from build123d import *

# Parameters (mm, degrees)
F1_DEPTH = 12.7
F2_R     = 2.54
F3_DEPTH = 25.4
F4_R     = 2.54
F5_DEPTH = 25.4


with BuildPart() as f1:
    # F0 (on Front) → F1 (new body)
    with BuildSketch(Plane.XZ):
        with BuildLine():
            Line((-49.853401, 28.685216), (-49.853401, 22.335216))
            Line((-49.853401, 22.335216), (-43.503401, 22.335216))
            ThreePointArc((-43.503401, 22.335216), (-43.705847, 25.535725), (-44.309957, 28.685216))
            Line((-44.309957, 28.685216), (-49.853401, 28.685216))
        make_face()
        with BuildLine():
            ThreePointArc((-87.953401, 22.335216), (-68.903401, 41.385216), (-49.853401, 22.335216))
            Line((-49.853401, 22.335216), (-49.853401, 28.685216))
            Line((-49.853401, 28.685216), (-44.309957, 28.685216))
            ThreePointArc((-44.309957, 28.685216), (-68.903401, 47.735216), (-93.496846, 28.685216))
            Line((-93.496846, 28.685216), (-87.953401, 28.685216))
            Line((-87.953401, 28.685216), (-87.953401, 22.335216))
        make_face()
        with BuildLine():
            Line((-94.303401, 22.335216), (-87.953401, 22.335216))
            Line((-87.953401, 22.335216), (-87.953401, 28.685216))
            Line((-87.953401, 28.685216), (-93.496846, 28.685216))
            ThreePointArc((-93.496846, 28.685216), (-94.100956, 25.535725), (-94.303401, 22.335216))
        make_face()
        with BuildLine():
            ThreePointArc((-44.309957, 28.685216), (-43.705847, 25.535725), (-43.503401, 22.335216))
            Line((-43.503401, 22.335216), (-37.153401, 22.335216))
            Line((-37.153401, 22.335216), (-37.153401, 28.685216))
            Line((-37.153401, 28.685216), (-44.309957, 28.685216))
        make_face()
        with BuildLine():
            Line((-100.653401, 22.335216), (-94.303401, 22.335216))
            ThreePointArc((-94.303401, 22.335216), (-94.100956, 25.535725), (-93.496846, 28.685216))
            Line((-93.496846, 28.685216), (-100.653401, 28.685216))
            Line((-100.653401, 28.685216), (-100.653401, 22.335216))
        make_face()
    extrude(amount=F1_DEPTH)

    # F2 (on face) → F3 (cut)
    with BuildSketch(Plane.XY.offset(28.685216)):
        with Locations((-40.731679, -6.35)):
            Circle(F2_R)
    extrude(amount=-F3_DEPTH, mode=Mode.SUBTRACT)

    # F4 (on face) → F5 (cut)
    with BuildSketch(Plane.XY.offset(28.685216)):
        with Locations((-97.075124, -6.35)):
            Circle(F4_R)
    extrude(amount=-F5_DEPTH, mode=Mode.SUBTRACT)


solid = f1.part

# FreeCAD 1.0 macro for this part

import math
import FreeCAD as App
import Part
import Sketcher

V = App.Vector
Q = App.Units.Quantity

doc = App.newDocument("Part")
body = doc.addObject("PartDesign::Body", "Body")

sketch1 = doc.addObject("Sketcher::SketchObject", "Sketch")
body.addObject(sketch1)
sketch1.AttachmentSupport = (doc.XZ_Plane, [""])
sketch1.MapMode = "FlatFace"
sketch1.addGeometry(Part.LineSegment(V(-49.853401, 22.335216, 0), V(-37.153401, 22.335216, 0)), False)
sketch1.addGeometry(Part.LineSegment(V(-37.153401, 22.335216, 0), V(-37.153401, 28.685216, 0)), False)
sketch1.addGeometry(Part.LineSegment(V(-37.153401, 28.685216, 0), V(-44.309957, 28.685216, 0)), False)
sketch1.addGeometry(Part.ArcOfCircle(Part.Circle(V(-68.903402, 22.335216, 0), V(0, 0, 1), 25.4), math.radians(14.477513), math.radians(165.522487)), False)
sketch1.addGeometry(Part.LineSegment(V(-93.496846, 28.685216, 0), V(-100.653401, 28.685216, 0)), False)
sketch1.addGeometry(Part.LineSegment(V(-100.653401, 28.685216, 0), V(-100.653401, 22.335216, 0)), False)
sketch1.addGeometry(Part.LineSegment(V(-100.653401, 22.335216, 0), V(-87.953401, 22.335216, 0)), False)
sketch1.addGeometry(Part.ArcOfCircle(Part.Circle(V(-68.903401, 22.335216, 0), V(0, 0, 1), 19.05), math.radians(0), math.radians(180)), False)
sketch1.addConstraint(Sketcher.Constraint("Coincident", 0, 2, 1, 1))
sketch1.addConstraint(Sketcher.Constraint("Coincident", 1, 2, 2, 1))
sketch1.addConstraint(Sketcher.Constraint("Coincident", 2, 2, 3, 1))
sketch1.addConstraint(Sketcher.Constraint("Coincident", 3, 2, 4, 1))
sketch1.addConstraint(Sketcher.Constraint("Coincident", 4, 2, 5, 1))
sketch1.addConstraint(Sketcher.Constraint("Coincident", 5, 2, 6, 1))
sketch1.addConstraint(Sketcher.Constraint("Coincident", 6, 2, 7, 2))
sketch1.addConstraint(Sketcher.Constraint("Coincident", 7, 1, 0, 1))
sketch1.addConstraint(Sketcher.Constraint("Horizontal", 0))
sketch1.addConstraint(Sketcher.Constraint("Vertical", 1))
sketch1.addConstraint(Sketcher.Constraint("Horizontal", 2))
sketch1.addConstraint(Sketcher.Constraint("Horizontal", 4))
sketch1.addConstraint(Sketcher.Constraint("Vertical", 5))
sketch1.addConstraint(Sketcher.Constraint("Horizontal", 6))
sketch1.addConstraint(Sketcher.Constraint("Coincident", 7, 3, 3, 3))
sketch1.addConstraint(Sketcher.Constraint("Horizontal", 7, 3, 0, 2))
sketch1.addConstraint(Sketcher.Constraint("Horizontal", 2, 2, 3, 2))
sketch1.addConstraint(Sketcher.Constraint("Horizontal", 0, 2, 5, 2))
sketch1.addConstraint(Sketcher.Constraint("Equal", 2, 4))
sketch1.addConstraint(Sketcher.Constraint("Radius", 3, Q("1 in")))
sketch1.addConstraint(Sketcher.Constraint("Radius", 7, Q("0.75 in")))
sketch1.addConstraint(Sketcher.Constraint("DistanceX", 0, 1, 0, 2, Q("0.5 in")))
sketch1.addConstraint(Sketcher.Constraint("DistanceY", 1, 1, 1, 2, Q("0.25 in")))
sketch1.addConstraint(Sketcher.Constraint("DistanceX", 3, 3, -1, 1, Q("68.903402 mm")))
sketch1.addConstraint(Sketcher.Constraint("DistanceY", -1, 1, 3, 3, Q("22.335216 mm")))
pad1 = doc.addObject("PartDesign::Pad", "Pad")
body.addObject(pad1)
pad1.Profile = sketch1
pad1.Length = Q("0.5 in")

sketch2 = doc.addObject("Sketcher::SketchObject", "Sketch001")
body.addObject(sketch2)
sketch2.AttachmentSupport = (doc.XY_Plane, [""])
sketch2.MapMode = "FlatFace"
sketch2.AttachmentOffset = App.Placement(V(0, 0, 28.685216), App.Rotation())
sketch2.addGeometry(Part.Circle(V(-40.731679, -6.35, 0), V(0, 0, 1), 2.54), False)
sketch2.addConstraint(Sketcher.Constraint("Diameter", 0, Q("0.2 in")))
sketch2.addConstraint(Sketcher.Constraint("DistanceY", 0, 3, -1, 1, Q("0.25 in")))
sketch2.addConstraint(Sketcher.Constraint("DistanceX", 0, 3, -1, 1, Q("40.731679 mm")))
pocket1 = doc.addObject("PartDesign::Pocket", "Pocket")
body.addObject(pocket1)
pocket1.Profile = sketch2
pocket1.Length = Q("1 in")

sketch3 = doc.addObject("Sketcher::SketchObject", "Sketch002")
body.addObject(sketch3)
sketch3.AttachmentSupport = (doc.XY_Plane, [""])
sketch3.MapMode = "FlatFace"
sketch3.AttachmentOffset = App.Placement(V(0, 0, 28.685216), App.Rotation())
sketch3.addGeometry(Part.Circle(V(-97.075124, -6.35, 0), V(0, 0, 1), 2.54), False)
sketch3.addConstraint(Sketcher.Constraint("Diameter", 0, Q("0.2 in")))
sketch3.addConstraint(Sketcher.Constraint("DistanceY", 0, 3, -1, 1, Q("0.25 in")))
sketch3.addConstraint(Sketcher.Constraint("DistanceX", 0, 3, -1, 1, Q("97.075124 mm")))
pocket2 = doc.addObject("PartDesign::Pocket", "Pocket001")
body.addObject(pocket2)
pocket2.Profile = sketch3
pocket2.Length = Q("1 in")

doc.recompute()
